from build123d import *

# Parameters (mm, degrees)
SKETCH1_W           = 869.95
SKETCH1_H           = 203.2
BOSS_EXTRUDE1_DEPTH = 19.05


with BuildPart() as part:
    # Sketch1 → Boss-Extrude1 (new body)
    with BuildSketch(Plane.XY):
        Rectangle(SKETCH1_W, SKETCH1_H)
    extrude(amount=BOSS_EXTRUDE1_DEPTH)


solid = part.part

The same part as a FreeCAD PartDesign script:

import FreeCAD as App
import Part
import Sketcher
from FreeCAD import Vector
Q = App.Units.Quantity


def add_polygon(sketch, points):
    """Adds a closed chain of lines whose ends are joined by coincident constraints."""
    first, n = sketch.GeometryCount, len(points)
    for a, b in zip(points, points[1:] + points[:1]):
        sketch.addGeometry(Part.LineSegment(App.Vector(*a, 0), App.Vector(*b, 0)), False)
    for i in range(n):
        sketch.addConstraint(Sketcher.Constraint("Coincident", first + i, 2, first + (i + 1) % n, 1))

doc = App.newDocument("Part")
body = doc.addObject("PartDesign::Body", "Body")

# Sketch on XY plane
sketch1 = doc.addObject("Sketcher::SketchObject", "Sketch")
body.addObject(sketch1)
sketch1.AttachmentSupport = (doc.XY_Plane, [""])
sketch1.MapMode = "FlatFace"
add_polygon(sketch1, [(-435, 102), (-435, -102), (435, -102), (435, 102)])  # lines 0-3
sketch1.addConstraint(Sketcher.Constraint("Vertical", 0))
sketch1.addConstraint(Sketcher.Constraint("Horizontal", 1))
sketch1.addConstraint(Sketcher.Constraint("Vertical", 2))
sketch1.addConstraint(Sketcher.Constraint("Horizontal", 3))
sketch1.addConstraint(Sketcher.Constraint("Symmetric", 0, 2, 2, 2, -1, 1))
sketch1.addConstraint(Sketcher.Constraint("DistanceY", 0, 2, 0, 1, Q("8 in")))
sketch1.addConstraint(Sketcher.Constraint("DistanceX", 1, 1, 1, 2, Q("34.25 in")))
pad1 = doc.addObject("PartDesign::Pad", "Pad")
body.addObject(pad1)
pad1.Profile = sketch1
pad1.Length = Q("0.75 in")

doc.recompute()
